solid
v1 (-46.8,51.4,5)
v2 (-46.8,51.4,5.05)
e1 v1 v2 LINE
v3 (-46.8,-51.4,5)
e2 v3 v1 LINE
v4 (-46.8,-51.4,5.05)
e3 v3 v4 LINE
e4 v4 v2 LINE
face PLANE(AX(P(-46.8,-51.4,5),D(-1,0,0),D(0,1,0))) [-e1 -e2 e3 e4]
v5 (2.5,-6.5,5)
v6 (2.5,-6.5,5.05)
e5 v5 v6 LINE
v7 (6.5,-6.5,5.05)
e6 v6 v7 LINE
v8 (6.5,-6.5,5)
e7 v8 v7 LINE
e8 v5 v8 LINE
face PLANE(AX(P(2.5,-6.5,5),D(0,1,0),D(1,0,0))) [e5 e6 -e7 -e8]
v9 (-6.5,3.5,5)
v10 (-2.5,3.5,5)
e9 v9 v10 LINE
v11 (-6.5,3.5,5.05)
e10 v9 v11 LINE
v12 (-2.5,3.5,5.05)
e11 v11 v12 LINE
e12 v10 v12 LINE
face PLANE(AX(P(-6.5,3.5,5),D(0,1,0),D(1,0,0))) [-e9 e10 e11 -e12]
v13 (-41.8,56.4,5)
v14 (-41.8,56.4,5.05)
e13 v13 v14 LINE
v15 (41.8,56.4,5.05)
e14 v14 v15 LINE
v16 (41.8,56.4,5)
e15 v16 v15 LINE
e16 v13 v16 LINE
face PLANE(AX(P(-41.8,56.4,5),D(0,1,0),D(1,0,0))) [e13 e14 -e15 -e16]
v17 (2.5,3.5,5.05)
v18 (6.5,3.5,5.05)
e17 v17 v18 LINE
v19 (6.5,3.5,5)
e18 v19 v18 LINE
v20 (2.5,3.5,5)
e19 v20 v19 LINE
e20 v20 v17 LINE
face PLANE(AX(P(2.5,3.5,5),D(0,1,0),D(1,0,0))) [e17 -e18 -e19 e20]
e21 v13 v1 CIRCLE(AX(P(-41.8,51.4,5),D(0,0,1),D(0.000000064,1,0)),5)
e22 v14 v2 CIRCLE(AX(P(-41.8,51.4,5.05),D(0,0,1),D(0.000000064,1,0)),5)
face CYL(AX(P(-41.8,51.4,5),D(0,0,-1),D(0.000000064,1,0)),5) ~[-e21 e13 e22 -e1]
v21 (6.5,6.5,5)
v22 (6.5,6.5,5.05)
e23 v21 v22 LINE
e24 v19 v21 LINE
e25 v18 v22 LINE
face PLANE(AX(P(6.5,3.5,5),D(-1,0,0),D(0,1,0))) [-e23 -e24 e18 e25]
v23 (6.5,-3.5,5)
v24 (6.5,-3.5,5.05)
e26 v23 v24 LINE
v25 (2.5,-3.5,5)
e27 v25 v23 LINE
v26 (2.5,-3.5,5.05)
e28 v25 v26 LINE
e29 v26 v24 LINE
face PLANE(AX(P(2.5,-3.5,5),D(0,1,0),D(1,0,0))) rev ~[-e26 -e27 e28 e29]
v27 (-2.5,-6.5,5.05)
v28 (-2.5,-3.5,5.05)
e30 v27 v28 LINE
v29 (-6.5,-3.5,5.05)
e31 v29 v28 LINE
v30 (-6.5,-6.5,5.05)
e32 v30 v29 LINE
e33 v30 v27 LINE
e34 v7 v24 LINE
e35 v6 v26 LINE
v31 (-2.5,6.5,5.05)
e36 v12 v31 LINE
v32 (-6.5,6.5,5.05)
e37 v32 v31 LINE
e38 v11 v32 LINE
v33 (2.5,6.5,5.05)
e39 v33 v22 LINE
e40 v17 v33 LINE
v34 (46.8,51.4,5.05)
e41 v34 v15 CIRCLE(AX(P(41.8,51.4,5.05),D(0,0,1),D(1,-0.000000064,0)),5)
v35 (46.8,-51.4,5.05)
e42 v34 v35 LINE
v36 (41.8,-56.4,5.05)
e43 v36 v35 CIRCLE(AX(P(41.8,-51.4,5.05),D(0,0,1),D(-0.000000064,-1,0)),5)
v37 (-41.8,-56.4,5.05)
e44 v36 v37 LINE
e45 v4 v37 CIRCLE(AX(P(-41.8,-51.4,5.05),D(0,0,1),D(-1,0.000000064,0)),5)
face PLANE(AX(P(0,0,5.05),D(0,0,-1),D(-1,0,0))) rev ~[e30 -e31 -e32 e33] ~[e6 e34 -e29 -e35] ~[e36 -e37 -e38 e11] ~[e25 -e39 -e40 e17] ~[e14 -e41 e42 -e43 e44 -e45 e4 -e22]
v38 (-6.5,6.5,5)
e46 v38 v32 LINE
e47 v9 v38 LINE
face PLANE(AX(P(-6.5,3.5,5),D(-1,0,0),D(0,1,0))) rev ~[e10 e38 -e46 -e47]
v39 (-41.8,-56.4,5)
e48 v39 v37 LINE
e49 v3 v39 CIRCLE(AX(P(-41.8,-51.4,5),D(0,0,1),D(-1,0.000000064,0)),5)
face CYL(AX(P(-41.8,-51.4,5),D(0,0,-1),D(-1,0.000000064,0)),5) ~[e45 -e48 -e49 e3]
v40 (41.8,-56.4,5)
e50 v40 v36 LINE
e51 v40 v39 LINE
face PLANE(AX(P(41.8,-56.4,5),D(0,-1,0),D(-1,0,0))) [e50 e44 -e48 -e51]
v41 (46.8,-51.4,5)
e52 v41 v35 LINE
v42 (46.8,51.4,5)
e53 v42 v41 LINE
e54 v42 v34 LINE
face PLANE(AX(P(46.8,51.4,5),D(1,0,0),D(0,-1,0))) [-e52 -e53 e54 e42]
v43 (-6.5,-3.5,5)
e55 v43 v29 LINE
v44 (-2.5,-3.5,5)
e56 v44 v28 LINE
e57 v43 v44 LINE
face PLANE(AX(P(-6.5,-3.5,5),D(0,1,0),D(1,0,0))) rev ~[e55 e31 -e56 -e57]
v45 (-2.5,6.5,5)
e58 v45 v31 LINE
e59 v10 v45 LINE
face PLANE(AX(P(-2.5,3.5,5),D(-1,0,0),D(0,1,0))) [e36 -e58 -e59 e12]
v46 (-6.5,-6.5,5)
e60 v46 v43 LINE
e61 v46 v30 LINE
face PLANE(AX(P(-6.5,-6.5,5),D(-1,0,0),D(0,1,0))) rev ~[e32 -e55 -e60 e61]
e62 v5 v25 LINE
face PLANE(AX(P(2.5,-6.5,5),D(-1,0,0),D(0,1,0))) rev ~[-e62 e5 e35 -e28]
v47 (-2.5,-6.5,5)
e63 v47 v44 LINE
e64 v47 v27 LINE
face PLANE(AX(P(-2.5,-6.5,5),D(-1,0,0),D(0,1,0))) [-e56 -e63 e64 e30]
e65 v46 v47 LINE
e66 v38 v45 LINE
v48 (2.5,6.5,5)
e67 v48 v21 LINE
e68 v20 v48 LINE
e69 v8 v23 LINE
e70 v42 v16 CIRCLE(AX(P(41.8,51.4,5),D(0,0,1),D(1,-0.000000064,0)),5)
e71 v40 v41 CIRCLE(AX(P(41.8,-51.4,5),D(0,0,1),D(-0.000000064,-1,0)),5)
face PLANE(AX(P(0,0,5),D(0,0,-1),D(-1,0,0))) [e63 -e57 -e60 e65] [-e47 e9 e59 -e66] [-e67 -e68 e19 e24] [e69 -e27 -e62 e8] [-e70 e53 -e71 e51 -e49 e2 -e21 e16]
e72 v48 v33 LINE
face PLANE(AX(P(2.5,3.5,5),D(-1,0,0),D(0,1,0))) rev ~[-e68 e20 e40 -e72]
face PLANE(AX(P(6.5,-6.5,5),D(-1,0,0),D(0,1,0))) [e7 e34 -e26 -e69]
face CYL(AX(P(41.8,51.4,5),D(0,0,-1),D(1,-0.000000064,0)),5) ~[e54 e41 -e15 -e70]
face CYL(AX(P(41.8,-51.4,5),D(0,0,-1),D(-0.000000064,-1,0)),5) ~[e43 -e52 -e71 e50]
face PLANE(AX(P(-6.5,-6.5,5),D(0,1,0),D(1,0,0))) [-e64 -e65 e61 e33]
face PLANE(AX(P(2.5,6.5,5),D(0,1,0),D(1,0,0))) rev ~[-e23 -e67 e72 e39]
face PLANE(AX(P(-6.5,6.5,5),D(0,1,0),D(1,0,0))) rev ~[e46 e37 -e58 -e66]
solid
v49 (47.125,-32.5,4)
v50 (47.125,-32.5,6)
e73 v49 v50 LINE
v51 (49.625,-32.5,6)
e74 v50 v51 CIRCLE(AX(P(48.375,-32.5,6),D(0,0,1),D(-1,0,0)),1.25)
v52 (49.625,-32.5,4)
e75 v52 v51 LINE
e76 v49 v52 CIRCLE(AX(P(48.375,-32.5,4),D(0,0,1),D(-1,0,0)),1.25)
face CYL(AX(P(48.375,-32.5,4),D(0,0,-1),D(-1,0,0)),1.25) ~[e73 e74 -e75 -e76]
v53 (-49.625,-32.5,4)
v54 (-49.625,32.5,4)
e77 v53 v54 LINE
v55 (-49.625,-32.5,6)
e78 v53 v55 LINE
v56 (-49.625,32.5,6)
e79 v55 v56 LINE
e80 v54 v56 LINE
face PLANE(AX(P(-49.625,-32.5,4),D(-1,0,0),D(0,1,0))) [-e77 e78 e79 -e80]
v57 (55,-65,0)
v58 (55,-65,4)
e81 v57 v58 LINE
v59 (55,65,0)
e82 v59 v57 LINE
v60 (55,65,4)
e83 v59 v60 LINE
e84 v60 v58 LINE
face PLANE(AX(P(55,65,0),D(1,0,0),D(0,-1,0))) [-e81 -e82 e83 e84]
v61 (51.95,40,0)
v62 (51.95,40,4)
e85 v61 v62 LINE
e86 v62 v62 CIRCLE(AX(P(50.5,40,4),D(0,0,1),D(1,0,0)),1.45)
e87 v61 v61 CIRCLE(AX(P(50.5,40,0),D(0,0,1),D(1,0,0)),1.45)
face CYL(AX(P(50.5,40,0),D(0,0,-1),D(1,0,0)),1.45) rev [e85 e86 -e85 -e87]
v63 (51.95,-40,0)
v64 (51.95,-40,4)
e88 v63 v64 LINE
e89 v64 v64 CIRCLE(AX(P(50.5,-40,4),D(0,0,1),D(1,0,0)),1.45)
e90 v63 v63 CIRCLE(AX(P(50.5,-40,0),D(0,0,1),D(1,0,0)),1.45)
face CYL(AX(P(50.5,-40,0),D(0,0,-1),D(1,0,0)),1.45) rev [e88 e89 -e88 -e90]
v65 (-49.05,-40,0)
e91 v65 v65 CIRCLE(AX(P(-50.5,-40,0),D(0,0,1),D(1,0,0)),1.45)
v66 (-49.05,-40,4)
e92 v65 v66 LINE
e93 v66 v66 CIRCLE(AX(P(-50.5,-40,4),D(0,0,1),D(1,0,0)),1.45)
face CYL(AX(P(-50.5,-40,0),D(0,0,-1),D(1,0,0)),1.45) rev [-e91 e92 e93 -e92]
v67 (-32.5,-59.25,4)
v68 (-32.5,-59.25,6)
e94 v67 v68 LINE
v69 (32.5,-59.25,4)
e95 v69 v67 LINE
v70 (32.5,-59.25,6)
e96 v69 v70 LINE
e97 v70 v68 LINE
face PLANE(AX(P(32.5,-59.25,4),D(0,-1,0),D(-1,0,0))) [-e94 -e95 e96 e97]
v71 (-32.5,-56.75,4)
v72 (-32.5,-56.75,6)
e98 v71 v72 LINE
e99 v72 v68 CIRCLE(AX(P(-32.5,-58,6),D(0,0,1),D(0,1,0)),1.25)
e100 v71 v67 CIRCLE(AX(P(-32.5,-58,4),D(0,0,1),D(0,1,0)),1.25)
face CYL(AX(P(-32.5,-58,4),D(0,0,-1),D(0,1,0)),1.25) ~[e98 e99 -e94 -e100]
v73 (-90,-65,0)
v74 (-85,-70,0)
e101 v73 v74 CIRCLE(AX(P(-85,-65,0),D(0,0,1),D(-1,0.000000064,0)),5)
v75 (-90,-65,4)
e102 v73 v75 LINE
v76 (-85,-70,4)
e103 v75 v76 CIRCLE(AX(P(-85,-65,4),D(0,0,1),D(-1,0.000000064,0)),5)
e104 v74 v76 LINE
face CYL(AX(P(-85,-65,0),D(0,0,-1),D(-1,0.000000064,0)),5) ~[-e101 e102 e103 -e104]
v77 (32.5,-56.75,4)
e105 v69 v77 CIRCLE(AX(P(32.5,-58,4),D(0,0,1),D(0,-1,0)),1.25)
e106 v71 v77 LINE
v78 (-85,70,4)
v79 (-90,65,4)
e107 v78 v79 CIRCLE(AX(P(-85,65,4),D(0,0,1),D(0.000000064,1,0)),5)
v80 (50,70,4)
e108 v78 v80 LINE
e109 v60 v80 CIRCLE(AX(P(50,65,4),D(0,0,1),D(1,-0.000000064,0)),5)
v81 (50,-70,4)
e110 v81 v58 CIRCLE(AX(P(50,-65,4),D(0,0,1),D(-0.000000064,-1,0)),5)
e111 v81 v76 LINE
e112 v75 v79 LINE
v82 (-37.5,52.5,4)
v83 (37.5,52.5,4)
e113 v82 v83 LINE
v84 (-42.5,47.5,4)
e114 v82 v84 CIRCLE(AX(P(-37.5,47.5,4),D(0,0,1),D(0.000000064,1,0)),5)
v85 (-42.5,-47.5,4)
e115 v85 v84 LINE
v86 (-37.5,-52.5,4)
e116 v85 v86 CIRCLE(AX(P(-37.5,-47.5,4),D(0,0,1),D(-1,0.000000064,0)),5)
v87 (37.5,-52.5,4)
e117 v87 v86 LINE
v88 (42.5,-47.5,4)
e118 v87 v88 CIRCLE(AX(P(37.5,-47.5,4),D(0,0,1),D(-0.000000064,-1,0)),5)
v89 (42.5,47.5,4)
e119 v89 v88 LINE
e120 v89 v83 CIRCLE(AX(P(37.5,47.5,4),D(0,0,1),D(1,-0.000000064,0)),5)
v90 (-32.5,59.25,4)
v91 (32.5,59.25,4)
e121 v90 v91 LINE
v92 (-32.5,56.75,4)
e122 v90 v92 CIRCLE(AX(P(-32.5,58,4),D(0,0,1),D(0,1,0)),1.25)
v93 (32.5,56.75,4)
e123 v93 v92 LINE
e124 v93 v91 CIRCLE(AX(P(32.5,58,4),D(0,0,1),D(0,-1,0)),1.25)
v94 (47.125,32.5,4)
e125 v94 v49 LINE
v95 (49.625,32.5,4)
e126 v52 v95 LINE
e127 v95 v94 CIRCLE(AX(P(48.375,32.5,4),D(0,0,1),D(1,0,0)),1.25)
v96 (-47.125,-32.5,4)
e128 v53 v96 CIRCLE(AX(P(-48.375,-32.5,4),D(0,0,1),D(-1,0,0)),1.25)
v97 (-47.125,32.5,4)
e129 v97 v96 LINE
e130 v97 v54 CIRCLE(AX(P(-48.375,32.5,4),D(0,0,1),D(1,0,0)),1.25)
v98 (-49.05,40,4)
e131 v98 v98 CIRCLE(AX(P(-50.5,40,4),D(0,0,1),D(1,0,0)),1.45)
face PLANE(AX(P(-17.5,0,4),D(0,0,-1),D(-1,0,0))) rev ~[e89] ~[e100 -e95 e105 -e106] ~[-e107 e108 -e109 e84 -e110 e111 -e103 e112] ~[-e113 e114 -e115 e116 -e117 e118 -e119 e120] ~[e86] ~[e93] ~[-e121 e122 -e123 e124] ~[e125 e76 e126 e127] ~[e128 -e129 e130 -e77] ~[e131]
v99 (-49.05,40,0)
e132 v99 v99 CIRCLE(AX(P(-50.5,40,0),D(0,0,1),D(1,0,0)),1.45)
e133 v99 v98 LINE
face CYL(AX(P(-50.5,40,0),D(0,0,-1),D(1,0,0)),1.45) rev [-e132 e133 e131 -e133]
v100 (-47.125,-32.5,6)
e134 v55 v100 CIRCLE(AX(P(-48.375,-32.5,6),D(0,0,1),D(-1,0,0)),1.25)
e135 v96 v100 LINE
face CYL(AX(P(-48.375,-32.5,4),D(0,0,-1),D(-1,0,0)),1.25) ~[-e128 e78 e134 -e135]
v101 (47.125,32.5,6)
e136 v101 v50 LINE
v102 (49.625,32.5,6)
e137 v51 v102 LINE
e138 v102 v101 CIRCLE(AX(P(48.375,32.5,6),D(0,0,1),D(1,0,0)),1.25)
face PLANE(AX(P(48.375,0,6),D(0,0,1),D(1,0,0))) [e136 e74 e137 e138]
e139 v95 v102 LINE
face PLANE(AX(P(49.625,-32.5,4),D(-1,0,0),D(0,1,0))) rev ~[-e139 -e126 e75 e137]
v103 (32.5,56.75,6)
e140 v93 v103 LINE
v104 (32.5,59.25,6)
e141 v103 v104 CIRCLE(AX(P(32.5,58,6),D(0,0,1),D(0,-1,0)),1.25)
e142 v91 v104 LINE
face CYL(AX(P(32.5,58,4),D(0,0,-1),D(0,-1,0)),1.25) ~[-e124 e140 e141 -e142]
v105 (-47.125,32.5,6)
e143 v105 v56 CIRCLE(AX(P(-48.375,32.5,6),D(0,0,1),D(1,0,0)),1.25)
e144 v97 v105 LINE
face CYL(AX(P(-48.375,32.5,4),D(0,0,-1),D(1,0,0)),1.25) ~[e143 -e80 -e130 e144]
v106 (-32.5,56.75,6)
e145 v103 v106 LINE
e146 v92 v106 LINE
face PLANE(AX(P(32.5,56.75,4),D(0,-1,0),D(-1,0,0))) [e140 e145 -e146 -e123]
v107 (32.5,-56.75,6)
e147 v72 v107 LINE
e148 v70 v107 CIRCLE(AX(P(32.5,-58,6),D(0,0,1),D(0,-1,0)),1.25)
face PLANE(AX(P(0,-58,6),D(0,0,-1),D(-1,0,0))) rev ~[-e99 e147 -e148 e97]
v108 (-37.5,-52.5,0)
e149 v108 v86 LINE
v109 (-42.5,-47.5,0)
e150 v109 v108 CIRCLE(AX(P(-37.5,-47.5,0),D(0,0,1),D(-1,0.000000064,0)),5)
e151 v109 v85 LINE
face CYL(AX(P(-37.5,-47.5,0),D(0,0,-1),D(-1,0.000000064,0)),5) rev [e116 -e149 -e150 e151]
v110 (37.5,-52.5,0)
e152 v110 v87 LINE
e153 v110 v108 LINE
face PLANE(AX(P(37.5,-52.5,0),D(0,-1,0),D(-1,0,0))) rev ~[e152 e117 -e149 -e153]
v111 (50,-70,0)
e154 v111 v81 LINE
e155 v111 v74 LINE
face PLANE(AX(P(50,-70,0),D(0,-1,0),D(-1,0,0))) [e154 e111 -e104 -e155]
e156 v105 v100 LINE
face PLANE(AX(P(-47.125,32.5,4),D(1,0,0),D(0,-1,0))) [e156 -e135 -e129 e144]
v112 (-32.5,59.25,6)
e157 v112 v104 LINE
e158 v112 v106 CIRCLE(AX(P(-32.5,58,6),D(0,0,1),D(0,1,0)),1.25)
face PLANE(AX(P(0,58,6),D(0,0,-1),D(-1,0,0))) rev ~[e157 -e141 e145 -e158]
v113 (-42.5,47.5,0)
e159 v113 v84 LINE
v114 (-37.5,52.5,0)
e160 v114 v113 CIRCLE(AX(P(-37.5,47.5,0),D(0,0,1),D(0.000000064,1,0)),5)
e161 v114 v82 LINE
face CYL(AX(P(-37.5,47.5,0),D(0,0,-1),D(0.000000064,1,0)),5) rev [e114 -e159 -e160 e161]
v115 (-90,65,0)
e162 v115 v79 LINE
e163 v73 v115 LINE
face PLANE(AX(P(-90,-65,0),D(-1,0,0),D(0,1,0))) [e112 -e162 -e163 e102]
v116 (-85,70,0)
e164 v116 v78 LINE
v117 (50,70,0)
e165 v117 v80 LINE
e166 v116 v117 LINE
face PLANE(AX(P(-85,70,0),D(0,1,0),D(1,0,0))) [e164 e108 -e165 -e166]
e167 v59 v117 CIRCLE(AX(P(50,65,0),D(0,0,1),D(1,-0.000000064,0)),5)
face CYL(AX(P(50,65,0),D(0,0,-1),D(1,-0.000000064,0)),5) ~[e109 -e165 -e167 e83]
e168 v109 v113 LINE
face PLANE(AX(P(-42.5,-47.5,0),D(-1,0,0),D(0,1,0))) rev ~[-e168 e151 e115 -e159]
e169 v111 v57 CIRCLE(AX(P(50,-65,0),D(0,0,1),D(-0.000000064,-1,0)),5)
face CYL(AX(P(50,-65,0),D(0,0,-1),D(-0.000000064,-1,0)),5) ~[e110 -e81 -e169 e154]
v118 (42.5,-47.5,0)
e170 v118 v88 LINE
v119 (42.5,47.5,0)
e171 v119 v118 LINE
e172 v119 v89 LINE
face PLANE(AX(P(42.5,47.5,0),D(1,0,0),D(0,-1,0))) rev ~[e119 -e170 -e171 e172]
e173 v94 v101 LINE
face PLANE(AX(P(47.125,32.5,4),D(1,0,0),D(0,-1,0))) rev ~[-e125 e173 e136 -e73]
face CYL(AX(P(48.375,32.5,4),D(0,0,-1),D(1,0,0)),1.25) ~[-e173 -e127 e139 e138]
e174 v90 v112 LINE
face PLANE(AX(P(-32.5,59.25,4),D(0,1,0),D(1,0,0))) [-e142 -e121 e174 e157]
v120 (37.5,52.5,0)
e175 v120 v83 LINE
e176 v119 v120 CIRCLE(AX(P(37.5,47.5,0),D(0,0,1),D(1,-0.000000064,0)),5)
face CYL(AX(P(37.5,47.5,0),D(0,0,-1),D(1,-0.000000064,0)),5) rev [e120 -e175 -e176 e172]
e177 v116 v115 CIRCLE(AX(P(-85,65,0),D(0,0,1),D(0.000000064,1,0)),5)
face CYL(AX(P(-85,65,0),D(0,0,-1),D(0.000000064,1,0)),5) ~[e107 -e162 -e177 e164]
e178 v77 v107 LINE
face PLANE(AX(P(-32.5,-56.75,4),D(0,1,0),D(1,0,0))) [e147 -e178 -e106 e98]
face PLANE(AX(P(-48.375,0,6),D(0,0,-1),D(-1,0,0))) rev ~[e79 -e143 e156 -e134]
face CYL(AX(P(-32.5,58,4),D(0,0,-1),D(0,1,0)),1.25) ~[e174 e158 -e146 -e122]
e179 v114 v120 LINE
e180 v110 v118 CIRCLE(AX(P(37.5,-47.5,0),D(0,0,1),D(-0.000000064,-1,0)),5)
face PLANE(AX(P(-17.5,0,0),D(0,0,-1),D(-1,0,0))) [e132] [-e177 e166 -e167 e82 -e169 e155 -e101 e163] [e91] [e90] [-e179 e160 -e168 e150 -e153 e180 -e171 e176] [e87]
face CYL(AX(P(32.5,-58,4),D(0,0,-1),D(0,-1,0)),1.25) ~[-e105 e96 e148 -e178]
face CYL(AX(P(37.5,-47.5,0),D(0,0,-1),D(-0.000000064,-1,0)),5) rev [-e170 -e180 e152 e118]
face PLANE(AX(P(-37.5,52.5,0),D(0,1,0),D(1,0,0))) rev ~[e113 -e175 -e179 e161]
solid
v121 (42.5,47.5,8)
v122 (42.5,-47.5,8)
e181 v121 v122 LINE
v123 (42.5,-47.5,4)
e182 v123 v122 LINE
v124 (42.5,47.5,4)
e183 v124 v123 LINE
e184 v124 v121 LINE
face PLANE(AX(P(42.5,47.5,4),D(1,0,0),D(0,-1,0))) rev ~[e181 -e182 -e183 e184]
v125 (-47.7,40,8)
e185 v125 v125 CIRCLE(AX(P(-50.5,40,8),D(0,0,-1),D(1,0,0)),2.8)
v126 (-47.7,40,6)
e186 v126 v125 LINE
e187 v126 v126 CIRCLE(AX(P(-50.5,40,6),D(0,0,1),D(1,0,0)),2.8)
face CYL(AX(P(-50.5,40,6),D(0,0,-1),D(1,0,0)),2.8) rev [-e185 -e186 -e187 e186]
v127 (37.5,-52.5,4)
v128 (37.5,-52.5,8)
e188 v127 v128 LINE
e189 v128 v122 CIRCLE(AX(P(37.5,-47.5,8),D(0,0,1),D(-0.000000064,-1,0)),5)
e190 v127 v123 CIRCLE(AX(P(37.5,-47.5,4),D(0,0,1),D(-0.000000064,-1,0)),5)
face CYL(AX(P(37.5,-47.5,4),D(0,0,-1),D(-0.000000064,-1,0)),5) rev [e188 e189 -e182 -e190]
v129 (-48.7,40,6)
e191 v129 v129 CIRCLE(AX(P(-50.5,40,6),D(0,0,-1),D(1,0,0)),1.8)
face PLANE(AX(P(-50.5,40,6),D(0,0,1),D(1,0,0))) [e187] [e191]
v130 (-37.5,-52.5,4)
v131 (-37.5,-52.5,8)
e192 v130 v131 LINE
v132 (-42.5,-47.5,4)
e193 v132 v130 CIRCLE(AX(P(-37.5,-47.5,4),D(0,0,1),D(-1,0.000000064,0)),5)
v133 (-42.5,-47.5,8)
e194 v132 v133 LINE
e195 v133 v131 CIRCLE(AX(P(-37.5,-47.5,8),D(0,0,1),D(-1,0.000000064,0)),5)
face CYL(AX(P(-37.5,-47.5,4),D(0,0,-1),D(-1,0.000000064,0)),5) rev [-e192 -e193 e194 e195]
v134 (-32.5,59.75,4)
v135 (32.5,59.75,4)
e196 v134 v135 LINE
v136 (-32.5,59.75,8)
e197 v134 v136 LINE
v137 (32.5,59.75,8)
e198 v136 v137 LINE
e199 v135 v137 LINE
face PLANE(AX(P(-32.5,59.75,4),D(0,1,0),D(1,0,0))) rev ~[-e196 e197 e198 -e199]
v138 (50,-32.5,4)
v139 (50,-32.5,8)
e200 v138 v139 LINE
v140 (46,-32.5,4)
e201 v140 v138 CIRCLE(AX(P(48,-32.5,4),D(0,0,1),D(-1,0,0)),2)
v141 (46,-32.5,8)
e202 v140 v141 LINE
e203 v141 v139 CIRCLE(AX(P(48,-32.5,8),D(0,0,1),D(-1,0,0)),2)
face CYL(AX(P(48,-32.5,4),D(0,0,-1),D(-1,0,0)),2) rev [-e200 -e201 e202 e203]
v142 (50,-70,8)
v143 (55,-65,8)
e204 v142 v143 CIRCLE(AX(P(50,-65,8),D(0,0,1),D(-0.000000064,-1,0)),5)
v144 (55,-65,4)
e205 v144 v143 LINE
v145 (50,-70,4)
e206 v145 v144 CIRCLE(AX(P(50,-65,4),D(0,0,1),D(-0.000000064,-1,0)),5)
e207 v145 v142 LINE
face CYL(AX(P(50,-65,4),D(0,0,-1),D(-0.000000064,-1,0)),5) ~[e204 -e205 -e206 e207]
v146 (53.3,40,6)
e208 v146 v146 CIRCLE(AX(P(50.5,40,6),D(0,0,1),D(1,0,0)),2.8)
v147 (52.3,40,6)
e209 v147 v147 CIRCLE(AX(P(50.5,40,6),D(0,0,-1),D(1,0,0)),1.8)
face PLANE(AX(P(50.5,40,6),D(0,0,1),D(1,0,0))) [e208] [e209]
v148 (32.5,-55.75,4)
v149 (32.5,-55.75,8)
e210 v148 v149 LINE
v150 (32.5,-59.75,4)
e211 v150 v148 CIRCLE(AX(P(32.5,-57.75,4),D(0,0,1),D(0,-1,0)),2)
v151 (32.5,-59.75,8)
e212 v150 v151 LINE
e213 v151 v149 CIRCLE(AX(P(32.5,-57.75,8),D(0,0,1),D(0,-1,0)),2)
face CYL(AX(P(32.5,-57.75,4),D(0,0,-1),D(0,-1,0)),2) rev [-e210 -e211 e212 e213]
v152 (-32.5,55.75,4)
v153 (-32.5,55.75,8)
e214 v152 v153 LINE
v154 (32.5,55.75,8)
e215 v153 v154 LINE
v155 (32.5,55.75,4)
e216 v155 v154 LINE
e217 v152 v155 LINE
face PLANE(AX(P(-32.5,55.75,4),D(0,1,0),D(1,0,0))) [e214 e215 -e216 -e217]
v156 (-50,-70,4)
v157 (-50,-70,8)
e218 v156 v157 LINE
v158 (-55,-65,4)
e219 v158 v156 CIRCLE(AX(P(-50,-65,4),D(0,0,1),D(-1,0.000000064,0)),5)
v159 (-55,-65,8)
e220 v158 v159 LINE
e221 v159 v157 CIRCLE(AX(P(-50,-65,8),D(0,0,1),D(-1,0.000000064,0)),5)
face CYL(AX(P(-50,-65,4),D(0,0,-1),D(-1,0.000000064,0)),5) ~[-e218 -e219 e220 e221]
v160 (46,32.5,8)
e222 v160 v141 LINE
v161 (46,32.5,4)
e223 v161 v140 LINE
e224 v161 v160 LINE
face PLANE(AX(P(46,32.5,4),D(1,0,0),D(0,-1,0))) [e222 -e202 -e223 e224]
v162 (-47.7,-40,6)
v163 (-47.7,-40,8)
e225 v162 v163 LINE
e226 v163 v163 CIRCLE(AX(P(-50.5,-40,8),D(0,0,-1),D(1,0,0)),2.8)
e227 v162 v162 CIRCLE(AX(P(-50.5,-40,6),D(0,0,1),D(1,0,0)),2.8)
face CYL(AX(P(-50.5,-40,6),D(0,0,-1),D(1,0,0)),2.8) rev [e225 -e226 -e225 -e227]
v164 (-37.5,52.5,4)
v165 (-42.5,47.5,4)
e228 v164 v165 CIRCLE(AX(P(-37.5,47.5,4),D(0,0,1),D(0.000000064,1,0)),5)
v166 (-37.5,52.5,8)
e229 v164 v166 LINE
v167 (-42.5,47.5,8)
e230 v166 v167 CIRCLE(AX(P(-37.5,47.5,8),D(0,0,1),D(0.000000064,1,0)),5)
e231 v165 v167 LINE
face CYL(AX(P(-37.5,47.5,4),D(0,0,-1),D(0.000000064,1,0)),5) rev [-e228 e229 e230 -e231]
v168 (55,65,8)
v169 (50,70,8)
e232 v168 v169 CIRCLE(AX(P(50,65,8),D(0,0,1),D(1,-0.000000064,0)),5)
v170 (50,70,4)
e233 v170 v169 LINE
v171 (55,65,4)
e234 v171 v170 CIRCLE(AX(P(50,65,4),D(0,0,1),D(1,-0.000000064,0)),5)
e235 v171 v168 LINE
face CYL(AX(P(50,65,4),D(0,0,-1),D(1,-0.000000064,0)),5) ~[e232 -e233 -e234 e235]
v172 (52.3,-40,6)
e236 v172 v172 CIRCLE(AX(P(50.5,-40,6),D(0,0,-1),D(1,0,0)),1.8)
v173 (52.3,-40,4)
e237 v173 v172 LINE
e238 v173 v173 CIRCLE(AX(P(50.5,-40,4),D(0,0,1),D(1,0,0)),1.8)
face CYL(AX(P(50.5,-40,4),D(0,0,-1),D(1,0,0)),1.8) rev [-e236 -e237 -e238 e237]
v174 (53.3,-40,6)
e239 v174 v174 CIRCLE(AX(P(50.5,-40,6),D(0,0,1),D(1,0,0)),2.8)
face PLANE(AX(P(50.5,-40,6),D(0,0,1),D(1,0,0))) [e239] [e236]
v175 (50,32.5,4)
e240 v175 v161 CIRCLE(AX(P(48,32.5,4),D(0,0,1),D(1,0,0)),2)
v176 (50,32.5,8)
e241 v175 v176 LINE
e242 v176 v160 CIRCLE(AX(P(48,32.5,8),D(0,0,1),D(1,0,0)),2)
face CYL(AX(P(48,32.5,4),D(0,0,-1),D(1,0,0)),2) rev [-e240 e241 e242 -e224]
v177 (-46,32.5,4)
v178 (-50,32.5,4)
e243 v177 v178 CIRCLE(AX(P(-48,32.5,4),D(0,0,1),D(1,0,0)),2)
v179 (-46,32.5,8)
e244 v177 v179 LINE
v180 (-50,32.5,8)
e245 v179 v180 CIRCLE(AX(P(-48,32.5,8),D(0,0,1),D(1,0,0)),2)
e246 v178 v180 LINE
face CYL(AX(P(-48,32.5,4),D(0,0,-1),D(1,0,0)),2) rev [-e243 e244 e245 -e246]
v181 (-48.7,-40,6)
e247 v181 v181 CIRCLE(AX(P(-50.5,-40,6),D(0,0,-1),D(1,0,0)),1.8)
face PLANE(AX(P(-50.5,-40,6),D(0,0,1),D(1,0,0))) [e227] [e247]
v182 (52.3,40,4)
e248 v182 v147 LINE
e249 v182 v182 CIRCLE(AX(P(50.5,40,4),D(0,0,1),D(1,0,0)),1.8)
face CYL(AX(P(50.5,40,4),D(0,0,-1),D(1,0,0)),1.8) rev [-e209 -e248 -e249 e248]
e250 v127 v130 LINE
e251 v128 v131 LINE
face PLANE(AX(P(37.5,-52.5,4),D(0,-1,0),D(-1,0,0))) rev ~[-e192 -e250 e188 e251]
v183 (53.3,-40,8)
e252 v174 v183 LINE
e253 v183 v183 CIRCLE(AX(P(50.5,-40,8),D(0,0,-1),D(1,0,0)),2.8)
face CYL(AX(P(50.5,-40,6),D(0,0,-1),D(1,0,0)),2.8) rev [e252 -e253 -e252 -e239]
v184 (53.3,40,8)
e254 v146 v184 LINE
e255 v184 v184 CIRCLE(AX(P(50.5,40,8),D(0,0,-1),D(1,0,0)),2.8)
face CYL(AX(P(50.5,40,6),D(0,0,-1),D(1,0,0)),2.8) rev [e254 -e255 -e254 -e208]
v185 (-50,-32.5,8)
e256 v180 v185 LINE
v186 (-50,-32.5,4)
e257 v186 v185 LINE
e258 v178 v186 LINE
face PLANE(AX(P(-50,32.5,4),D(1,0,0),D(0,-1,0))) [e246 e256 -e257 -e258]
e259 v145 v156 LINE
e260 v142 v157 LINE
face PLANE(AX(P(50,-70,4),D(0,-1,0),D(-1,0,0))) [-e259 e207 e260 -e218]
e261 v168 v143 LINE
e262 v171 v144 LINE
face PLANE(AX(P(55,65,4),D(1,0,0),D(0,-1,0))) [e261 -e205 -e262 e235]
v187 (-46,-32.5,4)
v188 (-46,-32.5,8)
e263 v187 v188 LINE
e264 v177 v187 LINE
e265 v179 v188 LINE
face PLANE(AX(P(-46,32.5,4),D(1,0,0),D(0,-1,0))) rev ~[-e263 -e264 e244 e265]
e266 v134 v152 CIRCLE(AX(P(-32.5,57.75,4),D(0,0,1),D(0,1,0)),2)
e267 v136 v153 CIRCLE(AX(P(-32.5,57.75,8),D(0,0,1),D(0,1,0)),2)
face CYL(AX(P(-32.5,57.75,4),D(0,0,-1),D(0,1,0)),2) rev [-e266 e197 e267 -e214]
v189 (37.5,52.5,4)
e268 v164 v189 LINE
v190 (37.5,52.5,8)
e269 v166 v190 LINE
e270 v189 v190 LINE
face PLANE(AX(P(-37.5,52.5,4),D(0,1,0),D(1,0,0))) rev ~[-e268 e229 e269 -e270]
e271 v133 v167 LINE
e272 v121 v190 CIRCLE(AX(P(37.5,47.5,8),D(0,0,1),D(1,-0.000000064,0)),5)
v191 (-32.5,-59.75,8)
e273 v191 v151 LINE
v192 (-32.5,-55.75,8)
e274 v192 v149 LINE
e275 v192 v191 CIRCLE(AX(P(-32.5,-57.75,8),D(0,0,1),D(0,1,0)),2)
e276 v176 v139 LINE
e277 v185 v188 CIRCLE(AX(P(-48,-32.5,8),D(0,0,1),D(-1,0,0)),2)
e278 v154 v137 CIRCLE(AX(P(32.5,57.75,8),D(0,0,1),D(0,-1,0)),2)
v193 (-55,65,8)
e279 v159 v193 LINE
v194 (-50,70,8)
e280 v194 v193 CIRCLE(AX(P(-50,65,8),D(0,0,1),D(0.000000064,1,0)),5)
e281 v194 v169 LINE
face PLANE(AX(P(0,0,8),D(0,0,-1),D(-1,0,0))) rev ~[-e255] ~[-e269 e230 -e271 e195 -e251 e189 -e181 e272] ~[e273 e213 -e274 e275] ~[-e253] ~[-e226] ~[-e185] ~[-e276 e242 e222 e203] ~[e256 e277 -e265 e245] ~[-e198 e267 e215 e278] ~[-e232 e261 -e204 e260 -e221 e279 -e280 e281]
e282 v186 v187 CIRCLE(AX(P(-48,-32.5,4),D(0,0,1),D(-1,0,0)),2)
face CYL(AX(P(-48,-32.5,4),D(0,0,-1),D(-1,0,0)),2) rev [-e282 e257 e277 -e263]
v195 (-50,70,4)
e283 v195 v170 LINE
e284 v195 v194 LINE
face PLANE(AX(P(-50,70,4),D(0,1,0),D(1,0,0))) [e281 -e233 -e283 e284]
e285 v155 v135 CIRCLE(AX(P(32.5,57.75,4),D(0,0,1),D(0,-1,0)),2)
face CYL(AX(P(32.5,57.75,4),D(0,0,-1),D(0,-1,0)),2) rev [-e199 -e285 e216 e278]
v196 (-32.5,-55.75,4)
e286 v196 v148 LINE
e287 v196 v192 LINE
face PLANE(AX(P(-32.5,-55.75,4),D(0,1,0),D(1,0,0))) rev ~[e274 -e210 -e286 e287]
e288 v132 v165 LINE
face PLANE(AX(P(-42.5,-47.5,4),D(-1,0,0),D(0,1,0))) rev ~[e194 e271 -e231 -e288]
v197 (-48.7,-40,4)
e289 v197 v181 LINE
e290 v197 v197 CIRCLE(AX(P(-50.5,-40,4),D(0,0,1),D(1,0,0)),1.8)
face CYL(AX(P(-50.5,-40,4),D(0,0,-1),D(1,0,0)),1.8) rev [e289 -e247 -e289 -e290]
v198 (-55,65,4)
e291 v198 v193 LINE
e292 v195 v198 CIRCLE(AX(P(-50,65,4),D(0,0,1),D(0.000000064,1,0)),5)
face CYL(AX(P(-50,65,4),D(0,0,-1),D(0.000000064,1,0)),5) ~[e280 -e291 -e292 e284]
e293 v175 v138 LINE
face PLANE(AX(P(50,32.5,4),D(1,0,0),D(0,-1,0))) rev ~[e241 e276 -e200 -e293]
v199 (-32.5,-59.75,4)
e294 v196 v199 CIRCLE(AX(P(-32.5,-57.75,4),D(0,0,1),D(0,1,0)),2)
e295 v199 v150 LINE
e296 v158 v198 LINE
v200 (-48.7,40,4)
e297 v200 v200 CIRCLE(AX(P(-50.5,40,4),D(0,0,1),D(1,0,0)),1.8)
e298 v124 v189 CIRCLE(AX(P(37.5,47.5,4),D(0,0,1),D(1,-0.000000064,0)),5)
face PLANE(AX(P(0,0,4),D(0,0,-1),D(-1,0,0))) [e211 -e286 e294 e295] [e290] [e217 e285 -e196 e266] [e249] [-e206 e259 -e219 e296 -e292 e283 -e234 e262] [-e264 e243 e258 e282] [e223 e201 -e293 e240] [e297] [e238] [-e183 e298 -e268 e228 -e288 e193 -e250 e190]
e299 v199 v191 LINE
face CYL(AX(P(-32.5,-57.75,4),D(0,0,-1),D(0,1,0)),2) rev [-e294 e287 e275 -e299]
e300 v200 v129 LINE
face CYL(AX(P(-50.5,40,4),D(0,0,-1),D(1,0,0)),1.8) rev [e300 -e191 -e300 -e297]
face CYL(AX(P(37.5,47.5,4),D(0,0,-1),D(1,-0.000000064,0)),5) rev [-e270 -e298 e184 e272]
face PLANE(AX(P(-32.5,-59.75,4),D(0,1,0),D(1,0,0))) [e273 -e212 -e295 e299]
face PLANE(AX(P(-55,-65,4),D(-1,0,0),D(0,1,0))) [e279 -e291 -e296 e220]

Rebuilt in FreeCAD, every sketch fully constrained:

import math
import FreeCAD as App
import Part
import Sketcher
Q = App.Units.Quantity


def add_polygon(sketch, points):
    """Adds a closed chain of lines whose ends are joined by coincident constraints."""
    first, n = sketch.GeometryCount, len(points)
    for a, b in zip(points, points[1:] + points[:1]):
        sketch.addGeometry(Part.LineSegment(App.Vector(*a, 0), App.Vector(*b, 0)), False)
    for i in range(n):
        sketch.addConstraint(Sketcher.Constraint("Coincident", first + i, 2, first + (i + 1) % n, 1))

doc = App.newDocument("Part")
body = doc.addObject("PartDesign::Body", "Body")

sketch1 = body.newObject("Sketcher::SketchObject", "Sketch")
sketch1.AttachmentSupport = (doc.getObject("XY_Plane"), [""])
sketch1.MapMode = "FlatFace"
sketch1.addGeometry(Part.LineSegment(App.Vector(41.8, 56.4, 0), App.Vector(-41.8, 56.4, 0)), False)
sketch1.addGeometry(Part.ArcOfCircle(Part.Circle(App.Vector(-41.8, 51.4, 0), App.Vector(0, 0, 1), 5), math.radians(90), math.radians(180)), False)
sketch1.addGeometry(Part.LineSegment(App.Vector(-46.8, 51.4, 0), App.Vector(-46.8, -51.4, 0)), False)
sketch1.addGeometry(Part.ArcOfCircle(Part.Circle(App.Vector(-41.8, -51.4, 0), App.Vector(0, 0, 1), 5), math.radians(180), math.radians(270)), False)
sketch1.addGeometry(Part.LineSegment(App.Vector(-41.8, -56.4, 0), App.Vector(41.8, -56.4, 0)), False)
sketch1.addGeometry(Part.ArcOfCircle(Part.Circle(App.Vector(41.8, -51.4, 0), App.Vector(0, 0, 1), 5), math.radians(-90), math.radians(0)), False)
sketch1.addGeometry(Part.LineSegment(App.Vector(46.8, -51.4, 0), App.Vector(46.8, 51.4, 0)), False)
sketch1.addGeometry(Part.ArcOfCircle(Part.Circle(App.Vector(41.8, 51.4, 0), App.Vector(0, 0, 1), 5), math.radians(0), math.radians(90)), False)
add_polygon(sketch1, [(2.5, -6.5), (2.5, -3.5), (6.5, -3.5), (6.5, -6.5)])
add_polygon(sketch1, [(-6.5, -6.5), (-6.5, -3.5), (-2.5, -3.5), (-2.5, -6.5)])
add_polygon(sketch1, [(2.5, 3.5), (2.5, 6.5), (6.5, 6.5), (6.5, 3.5)])
add_polygon(sketch1, [(-6.5, 3.5), (-6.5, 6.5), (-2.5, 6.5), (-2.5, 3.5)])
sketch1.addConstraint([
    Sketcher.Constraint("Tangent", 0, 2, 1, 1),
    Sketcher.Constraint("Tangent", 1, 2, 2, 1),
    Sketcher.Constraint("Tangent", 2, 2, 3, 1),
    Sketcher.Constraint("Tangent", 3, 2, 4, 1),
    Sketcher.Constraint("Tangent", 4, 2, 5, 1),
    Sketcher.Constraint("Tangent", 5, 2, 6, 1),
    Sketcher.Constraint("Tangent", 6, 2, 7, 1),
    Sketcher.Constraint("Tangent", 7, 2, 0, 1),
    Sketcher.Constraint("Horizontal", 0),
    Sketcher.Constraint("Vertical", 2),
    Sketcher.Constraint("Horizontal", 4),
    Sketcher.Constraint("Vertical", 6),
    Sketcher.Constraint("Vertical", 8),
    Sketcher.Constraint("Horizontal", 9),
    Sketcher.Constraint("Vertical", 10),
    Sketcher.Constraint("Horizontal", 11),
    Sketcher.Constraint("Vertical", 12),
    Sketcher.Constraint("Horizontal", 13),
    Sketcher.Constraint("Vertical", 14),
    Sketcher.Constraint("Horizontal", 15),
    Sketcher.Constraint("Vertical", 16),
    Sketcher.Constraint("Horizontal", 17),
    Sketcher.Constraint("Vertical", 18),
    Sketcher.Constraint("Horizontal", 19),
    Sketcher.Constraint("Vertical", 20),
    Sketcher.Constraint("Horizontal", 21),
    Sketcher.Constraint("Vertical", 22),
    Sketcher.Constraint("Horizontal", 23),
    Sketcher.Constraint("Equal", 1, 3),
    Sketcher.Constraint("Equal", 3, 5),
    Sketcher.Constraint("Equal", 5, 7),
    Sketcher.Constraint("Symmetric", 1, 3, 5, 3, -1, 1),
    Sketcher.Constraint("Symmetric", 14, 2, 16, 2, -1, 1),
    Sketcher.Constraint("Symmetric", 12, 2, 18, 2, -1, 1),
    Sketcher.Constraint("Symmetric", 10, 2, 20, 2, -1, 1),
    Sketcher.Constraint("Symmetric", 8, 2, 22, 2, -1, 1),
    Sketcher.Constraint("Symmetric", 9, 2, 12, 2, -2),
    Sketcher.Constraint("Symmetric", 11, 2, 14, 2, -2),
    Sketcher.Constraint("Radius", 1, Q("5 mm")),
    Sketcher.Constraint("DistanceX", 9, 1, 9, 2, Q("4 mm")),
    Sketcher.Constraint("DistanceY", 8, 1, 8, 2, Q("3 mm")),
    Sketcher.Constraint("DistanceX", 0, 2, 0, 1, Q("83.6 mm")),
    Sketcher.Constraint("DistanceY", 2, 2, 2, 1, Q("102.8 mm")),
    Sketcher.Constraint("DistanceX", 12, 2, 8, 2, Q("9 mm")),
    Sketcher.Constraint("DistanceY", 8, 2, 16, 2, Q("10 mm")),
])
pad1 = body.newObject("PartDesign::Pad", "Pad")
pad1.Profile = sketch1
pad1.Length = 0.05
body2 = doc.addObject("PartDesign::Body", "Body001")
doc.recompute()

body.Placement = App.Placement(App.Vector(0, 0, 5), App.Rotation(App.Vector(0, 0, 1), 0))
boolean = body2.newObject("PartDesign::Boolean", "Boolean")
boolean.Type = "Fuse"
boolean.addObjects([body])
body3 = doc.addObject("PartDesign::Body", "Body002")
body3.AllowCompound = True

sketch2 = body3.newObject("Sketcher::SketchObject", "Sketch001")
sketch2.AttachmentSupport = (doc.getObject("XY_Plane002"), [""])
sketch2.MapMode = "FlatFace"
sketch2.addGeometry([
    Part.LineSegment(App.Vector(47.1, 32.5, 0), App.Vector(47.1, -32.5, 0)),
    Part.ArcOfCircle(Part.Circle(App.Vector(48.4, -32.5, 0), App.Vector(0, 0, 1), 1.2), math.radians(180), math.radians(360)),
    Part.LineSegment(App.Vector(49.6, -32.5, 0), App.Vector(49.6, 32.5, 0)),
    Part.ArcOfCircle(Part.Circle(App.Vector(48.4, 32.5, 0), App.Vector(0, 0, 1), 1.2), math.radians(0), math.radians(180)),
    Part.LineSegment(App.Vector(-47.1, -32.5, 0), App.Vector(-47.1, 32.5, 0)),
    Part.ArcOfCircle(Part.Circle(App.Vector(-48.4, 32.5, 0), App.Vector(0, 0, 1), 1.2), math.radians(0), math.radians(180)),
    Part.LineSegment(App.Vector(-49.6, 32.5, 0), App.Vector(-49.6, -32.5, 0)),
    Part.ArcOfCircle(Part.Circle(App.Vector(-48.4, -32.5, 0), App.Vector(0, 0, 1), 1.2), math.radians(180), math.radians(360)),
    Part.LineSegment(App.Vector(32.5, 59.2, 0), App.Vector(-32.5, 59.2, 0)),
    Part.ArcOfCircle(Part.Circle(App.Vector(-32.5, 58, 0), App.Vector(0, 0, 1), 1.2), math.radians(90), math.radians(270)),
    Part.LineSegment(App.Vector(-32.5, 56.8, 0), App.Vector(32.5, 56.8, 0)),
    Part.ArcOfCircle(Part.Circle(App.Vector(32.5, 58, 0), App.Vector(0, 0, 1), 1.2), math.radians(-90), math.radians(90)),
    Part.LineSegment(App.Vector(32.5, -56.8, 0), App.Vector(-32.5, -56.8, 0)),
    Part.ArcOfCircle(Part.Circle(App.Vector(-32.5, -58, 0), App.Vector(0, 0, 1), 1.2), math.radians(90), math.radians(270)),
    Part.LineSegment(App.Vector(-32.5, -59.2, 0), App.Vector(32.5, -59.2, 0)),
    Part.ArcOfCircle(Part.Circle(App.Vector(32.5, -58, 0), App.Vector(0, 0, 1), 1.2), math.radians(-90), math.radians(90)),
], False)
sketch2.addConstraint([
    Sketcher.Constraint("Tangent", 0, 2, 1, 1),
    Sketcher.Constraint("Tangent", 1, 2, 2, 1),
    Sketcher.Constraint("Tangent", 2, 2, 3, 1),
    Sketcher.Constraint("Tangent", 3, 2, 0, 1),
    Sketcher.Constraint("Tangent", 4, 2, 5, 1),
    Sketcher.Constraint("Tangent", 5, 2, 6, 1),
    Sketcher.Constraint("Tangent", 6, 2, 7, 1),
    Sketcher.Constraint("Tangent", 7, 2, 4, 1),
    Sketcher.Constraint("Tangent", 8, 2, 9, 1),
    Sketcher.Constraint("Tangent", 9, 2, 10, 1),
    Sketcher.Constraint("Tangent", 10, 2, 11, 1),
    Sketcher.Constraint("Tangent", 11, 2, 8, 1),
    Sketcher.Constraint("Tangent", 12, 2, 13, 1),
    Sketcher.Constraint("Tangent", 13, 2, 14, 1),
    Sketcher.Constraint("Tangent", 14, 2, 15, 1),
    Sketcher.Constraint("Tangent", 15, 2, 12, 1),
    Sketcher.Constraint("Vertical", 0),
    Sketcher.Constraint("Vertical", 2),
    Sketcher.Constraint("Vertical", 4),
    Sketcher.Constraint("Vertical", 6),
    Sketcher.Constraint("Horizontal", 8),
    Sketcher.Constraint("Horizontal", 10),
    Sketcher.Constraint("Horizontal", 12),
    Sketcher.Constraint("Horizontal", 14),
    Sketcher.Constraint("Equal", 3, 5),
    Sketcher.Constraint("Equal", 7, 9),
    Sketcher.Constraint("Equal", 11, 13),
    Sketcher.Constraint("Symmetric", 1, 3, 5, 3, -1, 1),
    Sketcher.Constraint("Symmetric", 11, 3, 13, 3, -1, 1),
    Sketcher.Constraint("Horizontal", 3, 3, 5, 3),
    Sketcher.Constraint("Horizontal", 1, 3, 7, 3),
    Sketcher.Constraint("Vertical", 9, 3, 13, 3),
    Sketcher.Constraint("Vertical", 11, 3, 15, 3),
    Sketcher.Constraint("Equal", 14, 0),
    Sketcher.Constraint("DistanceX", 8, 2, 8, 1, Q("65 mm")),
    Sketcher.Constraint("Radius", 1, Q("1.25 mm")),
    Sketcher.Constraint("DistanceY", -1, 1, 9, 3, Q("58 mm")),
    Sketcher.Constraint("DistanceX", 5, 3, 3, 3, Q("96.75 mm")),
])
pad2 = body3.newObject("PartDesign::Pad", "Pad001")
pad2.Profile = sketch2
pad2.Length = 2
body4 = doc.addObject("PartDesign::Body", "Body003")
body4.AllowCompound = True
doc.recompute()

body3.Placement = App.Placement(App.Vector(0, 0, 4), App.Rotation(App.Vector(0, 0, 1), 0))
boolean2 = body4.newObject("PartDesign::Boolean", "Boolean001")
boolean2.Type = "Fuse"
boolean2.addObjects([body3])
body5 = doc.addObject("PartDesign::Body", "Body004")

sketch3 = body5.newObject("Sketcher::SketchObject", "Sketch002")
sketch3.AttachmentSupport = (doc.getObject("XY_Plane004"), [""])
sketch3.MapMode = "FlatFace"
sketch3.addGeometry([
    Part.LineSegment(App.Vector(50, 70, 0), App.Vector(-85, 70, 0)),
    Part.ArcOfCircle(Part.Circle(App.Vector(-85, 65, 0), App.Vector(0, 0, 1), 5), math.radians(90), math.radians(180)),
    Part.LineSegment(App.Vector(-90, 65, 0), App.Vector(-90, -65, 0)),
    Part.ArcOfCircle(Part.Circle(App.Vector(-85, -65, 0), App.Vector(0, 0, 1), 5), math.radians(180), math.radians(270)),
    Part.LineSegment(App.Vector(-85, -70, 0), App.Vector(50, -70, 0)),
    Part.ArcOfCircle(Part.Circle(App.Vector(50, -65, 0), App.Vector(0, 0, 1), 5), math.radians(-90), math.radians(0)),
    Part.LineSegment(App.Vector(55, -65, 0), App.Vector(55, 65, 0)),
    Part.ArcOfCircle(Part.Circle(App.Vector(50, 65, 0), App.Vector(0, 0, 1), 5), math.radians(0), math.radians(90)),
    Part.Circle(App.Vector(50.5, -40, 0), App.Vector(0, 0, 1), 1.4),
    Part.Circle(App.Vector(-50.5, -40, 0), App.Vector(0, 0, 1), 1.4),
    Part.Circle(App.Vector(50.5, 40, 0), App.Vector(0, 0, 1), 1.4),
    Part.LineSegment(App.Vector(-37.5, 52.5, 0), App.Vector(37.5, 52.5, 0)),
    Part.ArcOfCircle(Part.Circle(App.Vector(37.5, 47.5, 0), App.Vector(0, 0, 1), 5), math.radians(0), math.radians(90)),
    Part.LineSegment(App.Vector(42.5, 47.5, 0), App.Vector(42.5, -47.5, 0)),
    Part.ArcOfCircle(Part.Circle(App.Vector(37.5, -47.5, 0), App.Vector(0, 0, 1), 5), math.radians(-90), math.radians(0)),
    Part.LineSegment(App.Vector(37.5, -52.5, 0), App.Vector(-37.5, -52.5, 0)),
    Part.ArcOfCircle(Part.Circle(App.Vector(-37.5, -47.5, 0), App.Vector(0, 0, 1), 5), math.radians(180), math.radians(270)),
    Part.LineSegment(App.Vector(-42.5, -47.5, 0), App.Vector(-42.5, 47.5, 0)),
    Part.ArcOfCircle(Part.Circle(App.Vector(-37.5, 47.5, 0), App.Vector(0, 0, 1), 5), math.radians(90), math.radians(180)),
    Part.Circle(App.Vector(-50.5, 40, 0), App.Vector(0, 0, 1), 1.4),
], False)
sketch3.addConstraint([
    Sketcher.Constraint("Tangent", 0, 2, 1, 1),
    Sketcher.Constraint("Tangent", 1, 2, 2, 1),
    Sketcher.Constraint("Tangent", 2, 2, 3, 1),
    Sketcher.Constraint("Tangent", 3, 2, 4, 1),
    Sketcher.Constraint("Tangent", 4, 2, 5, 1),
    Sketcher.Constraint("Tangent", 5, 2, 6, 1),
    Sketcher.Constraint("Tangent", 6, 2, 7, 1),
    Sketcher.Constraint("Tangent", 7, 2, 0, 1),
    Sketcher.Constraint("Tangent", 11, 2, 12, 2),
    Sketcher.Constraint("Tangent", 12, 1, 13, 1),
    Sketcher.Constraint("Tangent", 13, 2, 14, 2),
    Sketcher.Constraint("Tangent", 14, 1, 15, 1),
    Sketcher.Constraint("Tangent", 15, 2, 16, 2),
    Sketcher.Constraint("Tangent", 16, 1, 17, 1),
    Sketcher.Constraint("Tangent", 17, 2, 18, 2),
    Sketcher.Constraint("Tangent", 18, 1, 11, 1),
    Sketcher.Constraint("Horizontal", 0),
    Sketcher.Constraint("Vertical", 2),
    Sketcher.Constraint("Horizontal", 4),
    Sketcher.Constraint("Vertical", 6),
    Sketcher.Constraint("Horizontal", 11),
    Sketcher.Constraint("Vertical", 13),
    Sketcher.Constraint("Horizontal", 15),
    Sketcher.Constraint("Vertical", 17),
    Sketcher.Constraint("Equal", 1, 3),
    Sketcher.Constraint("Equal", 3, 5),
    Sketcher.Constraint("Equal", 5, 7),
    Sketcher.Constraint("Equal", 8, 9),
    Sketcher.Constraint("Equal", 9, 10),
    Sketcher.Constraint("Equal", 7, 12),
    Sketcher.Constraint("Equal", 12, 14),
    Sketcher.Constraint("Equal", 14, 16),
    Sketcher.Constraint("Equal", 16, 18),
    Sketcher.Constraint("Equal", 10, 19),
    Sketcher.Constraint("Symmetric", 9, 3, 10, 3, -1, 1),
    Sketcher.Constraint("Symmetric", 12, 3, 16, 3, -1, 1),
    Sketcher.Constraint("Symmetric", 8, 3, 19, 3, -1, 1),
    Sketcher.Constraint("Symmetric", 8, 3, 9, 3, -2),
    Sketcher.Constraint("Radius", 1, Q("5 mm")),
    Sketcher.Constraint("Diameter", 8, Q("2.9 mm")),
    Sketcher.Constraint("DistanceX", 0, 2, 0, 1, Q("135 mm")),
    Sketcher.Constraint("DistanceX", 11, 1, 11, 2, Q("75 mm")),
    Sketcher.Constraint("DistanceY", 2, 2, 2, 1, Q("130 mm")),
    Sketcher.Constraint("DistanceY", 13, 2, 13, 1, Q("95 mm")),
    Sketcher.Constraint("DistanceX", 1, 3, -1, 1, Q("85 mm")),
    Sketcher.Constraint("DistanceY", -1, 1, 1, 3, Q("65 mm")),
    Sketcher.Constraint("DistanceY", 8, 3, -1, 1, Q("40 mm")),
    Sketcher.Constraint("DistanceX", 9, 3, 8, 3, Q("101 mm")),
])
pad3 = body5.newObject("PartDesign::Pad", "Pad002")
pad3.Profile = sketch3
pad3.Length = 4
doc.recompute()

boolean3 = body5.newObject("PartDesign::Boolean", "Boolean002")
boolean3.Type = "Fuse"
boolean3.addObjects([body4])
body6 = doc.addObject("PartDesign::Body", "Body005")
body6.AllowCompound = True

sketch4 = body6.newObject("Sketcher::SketchObject", "Sketch003")
sketch4.AttachmentSupport = (doc.getObject("XY_Plane005"), [""])
sketch4.MapMode = "FlatFace"
sketch4.addGeometry([
    Part.Circle(App.Vector(-50.5, 40, 0), App.Vector(0, 0, 1), 2.8),
    Part.Circle(App.Vector(50.5, -40, 0), App.Vector(0, 0, 1), 2.8),
    Part.Circle(App.Vector(-50.5, -40, 0), App.Vector(0, 0, 1), 2.8),
    Part.Circle(App.Vector(50.5, 40, 0), App.Vector(0, 0, 1), 2.8),
], False)
sketch4.addConstraint([
    Sketcher.Constraint("Equal", 0, 1),
    Sketcher.Constraint("Equal", 1, 2),
    Sketcher.Constraint("Equal", 2, 3),
    Sketcher.Constraint("Symmetric", 0, 3, 1, 3, -1, 1),
    Sketcher.Constraint("Symmetric", 2, 3, 3, 3, -1, 1),
    Sketcher.Constraint("Symmetric", 1, 3, 2, 3, -2),
    Sketcher.Constraint("Diameter", 0, Q("5.6 mm")),
    Sketcher.Constraint("DistanceY", -1, 1, 0, 3, Q("40 mm")),
    Sketcher.Constraint("DistanceX", 0, 3, 1, 3, Q("101 mm")),
])
pad4 = body6.newObject("PartDesign::Pad", "Pad003")
pad4.Profile = sketch4
pad4.Length = 3
body7 = doc.addObject("PartDesign::Body", "Body006")
body7.AllowCompound = True
doc.recompute()

body6.Placement = App.Placement(App.Vector(0, 0, 6), App.Rotation(App.Vector(0, 0, 1), 0))
boolean4 = body7.newObject("PartDesign::Boolean", "Boolean003")
boolean4.Type = "Fuse"
boolean4.addObjects([body6])
body8 = doc.addObject("PartDesign::Body", "Body007")

sketch5 = body8.newObject("Sketcher::SketchObject", "Sketch004")
sketch5.AttachmentSupport = (doc.getObject("XY_Plane007"), [""])
sketch5.MapMode = "FlatFace"
sketch5.addGeometry([
    Part.LineSegment(App.Vector(50, 70, 0), App.Vector(-50, 70, 0)),
    Part.ArcOfCircle(Part.Circle(App.Vector(-50, 65, 0), App.Vector(0, 0, 1), 5), math.radians(90), math.radians(180)),
    Part.LineSegment(App.Vector(-55, 65, 0), App.Vector(-55, -65, 0)),
    Part.ArcOfCircle(Part.Circle(App.Vector(-50, -65, 0), App.Vector(0, 0, 1), 5), math.radians(180), math.radians(270)),
    Part.LineSegment(App.Vector(-50, -70, 0), App.Vector(50, -70, 0)),
    Part.ArcOfCircle(Part.Circle(App.Vector(50, -65, 0), App.Vector(0, 0, 1), 5), math.radians(-90), math.radians(0)),
    Part.LineSegment(App.Vector(55, -65, 0), App.Vector(55, 65, 0)),
    Part.ArcOfCircle(Part.Circle(App.Vector(50, 65, 0), App.Vector(0, 0, 1), 5), math.radians(0), math.radians(90)),
    Part.Circle(App.Vector(50.5, -40, 0), App.Vector(0, 0, 1), 1.8),
    Part.LineSegment(App.Vector(50, 32.5, 0), App.Vector(50, -32.5, 0)),
    Part.ArcOfCircle(Part.Circle(App.Vector(48, -32.5, 0), App.Vector(0, 0, 1), 2), math.radians(180), math.radians(360)),
    Part.LineSegment(App.Vector(46, -32.5, 0), App.Vector(46, 32.5, 0)),
    Part.ArcOfCircle(Part.Circle(App.Vector(48, 32.5, 0), App.Vector(0, 0, 1), 2), math.radians(0), math.radians(180)),
    Part.LineSegment(App.Vector(-32.5, -55.8, 0), App.Vector(32.5, -55.8, 0)),
    Part.ArcOfCircle(Part.Circle(App.Vector(32.5, -57.8, 0), App.Vector(0, 0, 1), 2), math.radians(-90), math.radians(90)),
    Part.LineSegment(App.Vector(32.5, -59.8, 0), App.Vector(-32.5, -59.8, 0)),
    Part.ArcOfCircle(Part.Circle(App.Vector(-32.5, -57.8, 0), App.Vector(0, 0, 1), 2), math.radians(90), math.radians(270)),
    Part.Circle(App.Vector(-50.5, -40, 0), App.Vector(0, 0, 1), 1.8),
    Part.LineSegment(App.Vector(-37.5, 52.5, 0), App.Vector(37.5, 52.5, 0)),
    Part.ArcOfCircle(Part.Circle(App.Vector(37.5, 47.5, 0), App.Vector(0, 0, 1), 5), math.radians(0), math.radians(90)),
    Part.LineSegment(App.Vector(42.5, 47.5, 0), App.Vector(42.5, -47.5, 0)),
    Part.ArcOfCircle(Part.Circle(App.Vector(37.5, -47.5, 0), App.Vector(0, 0, 1), 5), math.radians(-90), math.radians(0)),
    Part.LineSegment(App.Vector(37.5, -52.5, 0), App.Vector(-37.5, -52.5, 0)),
    Part.ArcOfCircle(Part.Circle(App.Vector(-37.5, -47.5, 0), App.Vector(0, 0, 1), 5), math.radians(180), math.radians(270)),
    Part.LineSegment(App.Vector(-42.5, -47.5, 0), App.Vector(-42.5, 47.5, 0)),
    Part.ArcOfCircle(Part.Circle(App.Vector(-37.5, 47.5, 0), App.Vector(0, 0, 1), 5), math.radians(90), math.radians(180)),
    Part.LineSegment(App.Vector(-46, 32.5, 0), App.Vector(-46, -32.5, 0)),
    Part.ArcOfCircle(Part.Circle(App.Vector(-48, -32.5, 0), App.Vector(0, 0, 1), 2), math.radians(180), math.radians(360)),
    Part.LineSegment(App.Vector(-50, -32.5, 0), App.Vector(-50, 32.5, 0)),
    Part.ArcOfCircle(Part.Circle(App.Vector(-48, 32.5, 0), App.Vector(0, 0, 1), 2), math.radians(0), math.radians(180)),
    Part.Circle(App.Vector(50.5, 40, 0), App.Vector(0, 0, 1), 1.8),
    Part.LineSegment(App.Vector(-32.5, 59.8, 0), App.Vector(32.5, 59.8, 0)),
    Part.ArcOfCircle(Part.Circle(App.Vector(32.5, 57.8, 0), App.Vector(0, 0, 1), 2), math.radians(-90), math.radians(90)),
    Part.LineSegment(App.Vector(32.5, 55.8, 0), App.Vector(-32.5, 55.8, 0)),
    Part.ArcOfCircle(Part.Circle(App.Vector(-32.5, 57.8, 0), App.Vector(0, 0, 1), 2), math.radians(90), math.radians(270)),
    Part.Circle(App.Vector(-50.5, 40, 0), App.Vector(0, 0, 1), 1.8),
], False)
sketch5.addConstraint([
    Sketcher.Constraint("Tangent", 0, 2, 1, 1),
    Sketcher.Constraint("Tangent", 1, 2, 2, 1),
    Sketcher.Constraint("Tangent", 2, 2, 3, 1),
    Sketcher.Constraint("Tangent", 3, 2, 4, 1),
    Sketcher.Constraint("Tangent", 4, 2, 5, 1),
    Sketcher.Constraint("Tangent", 5, 2, 6, 1),
    Sketcher.Constraint("Tangent", 6, 2, 7, 1),
    Sketcher.Constraint("Tangent", 7, 2, 0, 1),
    Sketcher.Constraint("Tangent", 9, 2, 10, 2),
    Sketcher.Constraint("Tangent", 10, 1, 11, 1),
    Sketcher.Constraint("Tangent", 11, 2, 12, 2),
    Sketcher.Constraint("Tangent", 12, 1, 9, 1),
    Sketcher.Constraint("Tangent", 13, 2, 14, 2),
    Sketcher.Constraint("Tangent", 14, 1, 15, 1),
    Sketcher.Constraint("Tangent", 15, 2, 16, 2),
    Sketcher.Constraint("Tangent", 16, 1, 13, 1),
    Sketcher.Constraint("Tangent", 18, 2, 19, 2),
    Sketcher.Constraint("Tangent", 19, 1, 20, 1),
    Sketcher.Constraint("Tangent", 20, 2, 21, 2),
    Sketcher.Constraint("Tangent", 21, 1, 22, 1),
    Sketcher.Constraint("Tangent", 22, 2, 23, 2),
    Sketcher.Constraint("Tangent", 23, 1, 24, 1),
    Sketcher.Constraint("Tangent", 24, 2, 25, 2),
    Sketcher.Constraint("Tangent", 25, 1, 18, 1),
    Sketcher.Constraint("Tangent", 26, 2, 27, 2),
    Sketcher.Constraint("Tangent", 27, 1, 28, 1),
    Sketcher.Constraint("Tangent", 28, 2, 29, 2),
    Sketcher.Constraint("Tangent", 29, 1, 26, 1),
    Sketcher.Constraint("Tangent", 31, 2, 32, 2),
    Sketcher.Constraint("Tangent", 32, 1, 33, 1),
    Sketcher.Constraint("Tangent", 33, 2, 34, 2),
    Sketcher.Constraint("Tangent", 34, 1, 31, 1),
    Sketcher.Constraint("Horizontal", 0),
    Sketcher.Constraint("Vertical", 2),
    Sketcher.Constraint("Horizontal", 4),
    Sketcher.Constraint("Vertical", 6),
    Sketcher.Constraint("Vertical", 9),
    Sketcher.Constraint("Vertical", 11),
    Sketcher.Constraint("Horizontal", 13),
    Sketcher.Constraint("Horizontal", 15),
    Sketcher.Constraint("Horizontal", 18),
    Sketcher.Constraint("Vertical", 20),
    Sketcher.Constraint("Horizontal", 22),
    Sketcher.Constraint("Vertical", 24),
    Sketcher.Constraint("Vertical", 26),
    Sketcher.Constraint("Vertical", 28),
    Sketcher.Constraint("Horizontal", 31),
    Sketcher.Constraint("Horizontal", 33),
    Sketcher.Constraint("Equal", 1, 3),
    Sketcher.Constraint("Equal", 3, 5),
    Sketcher.Constraint("Equal", 5, 7),
    Sketcher.Constraint("Equal", 12, 14),
    Sketcher.Constraint("Equal", 8, 17),
    Sketcher.Constraint("Equal", 7, 19),
    Sketcher.Constraint("Equal", 19, 21),
    Sketcher.Constraint("Equal", 21, 23),
    Sketcher.Constraint("Equal", 23, 25),
    Sketcher.Constraint("Equal", 16, 27),
    Sketcher.Constraint("Equal", 17, 30),
    Sketcher.Constraint("Equal", 29, 32),
    Sketcher.Constraint("Equal", 30, 35),
    Sketcher.Constraint("Symmetric", 1, 3, 5, 3, -1, 1),
    Sketcher.Constraint("Symmetric", 19, 3, 23, 3, -1, 1),
    Sketcher.Constraint("Symmetric", 12, 3, 27, 3, -1, 1),
    Sketcher.Constraint("Symmetric", 17, 3, 30, 3, -1, 1),
    Sketcher.Constraint("Symmetric", 16, 3, 32, 3, -1, 1),
    Sketcher.Constraint("Symmetric", 8, 3, 35, 3, -1, 1),
    Sketcher.Constraint("Symmetric", 8, 3, 17, 3, -2),
    Sketcher.Constraint("Horizontal", 10, 3, 27, 3),
    Sketcher.Constraint("Horizontal", 12, 3, 29, 3),
    Sketcher.Constraint("Vertical", 14, 3, 32, 3),
    Sketcher.Constraint("Vertical", 16, 3, 34, 3),
    Sketcher.Constraint("Vertical", 7, 2, 9, 2),
    Sketcher.Constraint("Equal", 33, 9),
    Sketcher.Constraint("Radius", 1, Q("5 mm")),
    Sketcher.Constraint("Radius", 10, Q("2 mm")),
    Sketcher.Constraint("Diameter", 8, Q("3.6 mm")),
    Sketcher.Constraint("DistanceX", 0, 2, 0, 1, Q("100 mm")),
    Sketcher.Constraint("DistanceX", 13, 1, 13, 2, Q("65 mm")),
    Sketcher.Constraint("DistanceX", 18, 1, 18, 2, Q("75 mm")),
    Sketcher.Constraint("DistanceY", 2, 2, 2, 1, Q("130 mm")),
    Sketcher.Constraint("DistanceY", 20, 2, 20, 1, Q("95 mm")),
    Sketcher.Constraint("DistanceY", 8, 3, -1, 1, Q("40 mm")),
    Sketcher.Constraint("DistanceX", 14, 3, 8, 3, Q("18 mm")),
    Sketcher.Constraint("DistanceY", 14, 3, -1, 1, Q("57.75 mm")),
])
pad5 = body8.newObject("PartDesign::Pad", "Pad004")
pad5.Profile = sketch5
pad5.Length = 4
body9 = doc.addObject("PartDesign::Body", "Body008")
doc.recompute()

body8.Placement = App.Placement(App.Vector(0, 0, 4), App.Rotation(App.Vector(0, 0, 1), 0))
boolean5 = body9.newObject("PartDesign::Boolean", "Boolean004")
boolean5.Type = "Fuse"
boolean5.addObjects([body8])
doc.recompute()

boolean6 = body9.newObject("PartDesign::Boolean", "Boolean005")
boolean6.Type = "Cut"
boolean6.addObjects([body7])

doc.recompute()
